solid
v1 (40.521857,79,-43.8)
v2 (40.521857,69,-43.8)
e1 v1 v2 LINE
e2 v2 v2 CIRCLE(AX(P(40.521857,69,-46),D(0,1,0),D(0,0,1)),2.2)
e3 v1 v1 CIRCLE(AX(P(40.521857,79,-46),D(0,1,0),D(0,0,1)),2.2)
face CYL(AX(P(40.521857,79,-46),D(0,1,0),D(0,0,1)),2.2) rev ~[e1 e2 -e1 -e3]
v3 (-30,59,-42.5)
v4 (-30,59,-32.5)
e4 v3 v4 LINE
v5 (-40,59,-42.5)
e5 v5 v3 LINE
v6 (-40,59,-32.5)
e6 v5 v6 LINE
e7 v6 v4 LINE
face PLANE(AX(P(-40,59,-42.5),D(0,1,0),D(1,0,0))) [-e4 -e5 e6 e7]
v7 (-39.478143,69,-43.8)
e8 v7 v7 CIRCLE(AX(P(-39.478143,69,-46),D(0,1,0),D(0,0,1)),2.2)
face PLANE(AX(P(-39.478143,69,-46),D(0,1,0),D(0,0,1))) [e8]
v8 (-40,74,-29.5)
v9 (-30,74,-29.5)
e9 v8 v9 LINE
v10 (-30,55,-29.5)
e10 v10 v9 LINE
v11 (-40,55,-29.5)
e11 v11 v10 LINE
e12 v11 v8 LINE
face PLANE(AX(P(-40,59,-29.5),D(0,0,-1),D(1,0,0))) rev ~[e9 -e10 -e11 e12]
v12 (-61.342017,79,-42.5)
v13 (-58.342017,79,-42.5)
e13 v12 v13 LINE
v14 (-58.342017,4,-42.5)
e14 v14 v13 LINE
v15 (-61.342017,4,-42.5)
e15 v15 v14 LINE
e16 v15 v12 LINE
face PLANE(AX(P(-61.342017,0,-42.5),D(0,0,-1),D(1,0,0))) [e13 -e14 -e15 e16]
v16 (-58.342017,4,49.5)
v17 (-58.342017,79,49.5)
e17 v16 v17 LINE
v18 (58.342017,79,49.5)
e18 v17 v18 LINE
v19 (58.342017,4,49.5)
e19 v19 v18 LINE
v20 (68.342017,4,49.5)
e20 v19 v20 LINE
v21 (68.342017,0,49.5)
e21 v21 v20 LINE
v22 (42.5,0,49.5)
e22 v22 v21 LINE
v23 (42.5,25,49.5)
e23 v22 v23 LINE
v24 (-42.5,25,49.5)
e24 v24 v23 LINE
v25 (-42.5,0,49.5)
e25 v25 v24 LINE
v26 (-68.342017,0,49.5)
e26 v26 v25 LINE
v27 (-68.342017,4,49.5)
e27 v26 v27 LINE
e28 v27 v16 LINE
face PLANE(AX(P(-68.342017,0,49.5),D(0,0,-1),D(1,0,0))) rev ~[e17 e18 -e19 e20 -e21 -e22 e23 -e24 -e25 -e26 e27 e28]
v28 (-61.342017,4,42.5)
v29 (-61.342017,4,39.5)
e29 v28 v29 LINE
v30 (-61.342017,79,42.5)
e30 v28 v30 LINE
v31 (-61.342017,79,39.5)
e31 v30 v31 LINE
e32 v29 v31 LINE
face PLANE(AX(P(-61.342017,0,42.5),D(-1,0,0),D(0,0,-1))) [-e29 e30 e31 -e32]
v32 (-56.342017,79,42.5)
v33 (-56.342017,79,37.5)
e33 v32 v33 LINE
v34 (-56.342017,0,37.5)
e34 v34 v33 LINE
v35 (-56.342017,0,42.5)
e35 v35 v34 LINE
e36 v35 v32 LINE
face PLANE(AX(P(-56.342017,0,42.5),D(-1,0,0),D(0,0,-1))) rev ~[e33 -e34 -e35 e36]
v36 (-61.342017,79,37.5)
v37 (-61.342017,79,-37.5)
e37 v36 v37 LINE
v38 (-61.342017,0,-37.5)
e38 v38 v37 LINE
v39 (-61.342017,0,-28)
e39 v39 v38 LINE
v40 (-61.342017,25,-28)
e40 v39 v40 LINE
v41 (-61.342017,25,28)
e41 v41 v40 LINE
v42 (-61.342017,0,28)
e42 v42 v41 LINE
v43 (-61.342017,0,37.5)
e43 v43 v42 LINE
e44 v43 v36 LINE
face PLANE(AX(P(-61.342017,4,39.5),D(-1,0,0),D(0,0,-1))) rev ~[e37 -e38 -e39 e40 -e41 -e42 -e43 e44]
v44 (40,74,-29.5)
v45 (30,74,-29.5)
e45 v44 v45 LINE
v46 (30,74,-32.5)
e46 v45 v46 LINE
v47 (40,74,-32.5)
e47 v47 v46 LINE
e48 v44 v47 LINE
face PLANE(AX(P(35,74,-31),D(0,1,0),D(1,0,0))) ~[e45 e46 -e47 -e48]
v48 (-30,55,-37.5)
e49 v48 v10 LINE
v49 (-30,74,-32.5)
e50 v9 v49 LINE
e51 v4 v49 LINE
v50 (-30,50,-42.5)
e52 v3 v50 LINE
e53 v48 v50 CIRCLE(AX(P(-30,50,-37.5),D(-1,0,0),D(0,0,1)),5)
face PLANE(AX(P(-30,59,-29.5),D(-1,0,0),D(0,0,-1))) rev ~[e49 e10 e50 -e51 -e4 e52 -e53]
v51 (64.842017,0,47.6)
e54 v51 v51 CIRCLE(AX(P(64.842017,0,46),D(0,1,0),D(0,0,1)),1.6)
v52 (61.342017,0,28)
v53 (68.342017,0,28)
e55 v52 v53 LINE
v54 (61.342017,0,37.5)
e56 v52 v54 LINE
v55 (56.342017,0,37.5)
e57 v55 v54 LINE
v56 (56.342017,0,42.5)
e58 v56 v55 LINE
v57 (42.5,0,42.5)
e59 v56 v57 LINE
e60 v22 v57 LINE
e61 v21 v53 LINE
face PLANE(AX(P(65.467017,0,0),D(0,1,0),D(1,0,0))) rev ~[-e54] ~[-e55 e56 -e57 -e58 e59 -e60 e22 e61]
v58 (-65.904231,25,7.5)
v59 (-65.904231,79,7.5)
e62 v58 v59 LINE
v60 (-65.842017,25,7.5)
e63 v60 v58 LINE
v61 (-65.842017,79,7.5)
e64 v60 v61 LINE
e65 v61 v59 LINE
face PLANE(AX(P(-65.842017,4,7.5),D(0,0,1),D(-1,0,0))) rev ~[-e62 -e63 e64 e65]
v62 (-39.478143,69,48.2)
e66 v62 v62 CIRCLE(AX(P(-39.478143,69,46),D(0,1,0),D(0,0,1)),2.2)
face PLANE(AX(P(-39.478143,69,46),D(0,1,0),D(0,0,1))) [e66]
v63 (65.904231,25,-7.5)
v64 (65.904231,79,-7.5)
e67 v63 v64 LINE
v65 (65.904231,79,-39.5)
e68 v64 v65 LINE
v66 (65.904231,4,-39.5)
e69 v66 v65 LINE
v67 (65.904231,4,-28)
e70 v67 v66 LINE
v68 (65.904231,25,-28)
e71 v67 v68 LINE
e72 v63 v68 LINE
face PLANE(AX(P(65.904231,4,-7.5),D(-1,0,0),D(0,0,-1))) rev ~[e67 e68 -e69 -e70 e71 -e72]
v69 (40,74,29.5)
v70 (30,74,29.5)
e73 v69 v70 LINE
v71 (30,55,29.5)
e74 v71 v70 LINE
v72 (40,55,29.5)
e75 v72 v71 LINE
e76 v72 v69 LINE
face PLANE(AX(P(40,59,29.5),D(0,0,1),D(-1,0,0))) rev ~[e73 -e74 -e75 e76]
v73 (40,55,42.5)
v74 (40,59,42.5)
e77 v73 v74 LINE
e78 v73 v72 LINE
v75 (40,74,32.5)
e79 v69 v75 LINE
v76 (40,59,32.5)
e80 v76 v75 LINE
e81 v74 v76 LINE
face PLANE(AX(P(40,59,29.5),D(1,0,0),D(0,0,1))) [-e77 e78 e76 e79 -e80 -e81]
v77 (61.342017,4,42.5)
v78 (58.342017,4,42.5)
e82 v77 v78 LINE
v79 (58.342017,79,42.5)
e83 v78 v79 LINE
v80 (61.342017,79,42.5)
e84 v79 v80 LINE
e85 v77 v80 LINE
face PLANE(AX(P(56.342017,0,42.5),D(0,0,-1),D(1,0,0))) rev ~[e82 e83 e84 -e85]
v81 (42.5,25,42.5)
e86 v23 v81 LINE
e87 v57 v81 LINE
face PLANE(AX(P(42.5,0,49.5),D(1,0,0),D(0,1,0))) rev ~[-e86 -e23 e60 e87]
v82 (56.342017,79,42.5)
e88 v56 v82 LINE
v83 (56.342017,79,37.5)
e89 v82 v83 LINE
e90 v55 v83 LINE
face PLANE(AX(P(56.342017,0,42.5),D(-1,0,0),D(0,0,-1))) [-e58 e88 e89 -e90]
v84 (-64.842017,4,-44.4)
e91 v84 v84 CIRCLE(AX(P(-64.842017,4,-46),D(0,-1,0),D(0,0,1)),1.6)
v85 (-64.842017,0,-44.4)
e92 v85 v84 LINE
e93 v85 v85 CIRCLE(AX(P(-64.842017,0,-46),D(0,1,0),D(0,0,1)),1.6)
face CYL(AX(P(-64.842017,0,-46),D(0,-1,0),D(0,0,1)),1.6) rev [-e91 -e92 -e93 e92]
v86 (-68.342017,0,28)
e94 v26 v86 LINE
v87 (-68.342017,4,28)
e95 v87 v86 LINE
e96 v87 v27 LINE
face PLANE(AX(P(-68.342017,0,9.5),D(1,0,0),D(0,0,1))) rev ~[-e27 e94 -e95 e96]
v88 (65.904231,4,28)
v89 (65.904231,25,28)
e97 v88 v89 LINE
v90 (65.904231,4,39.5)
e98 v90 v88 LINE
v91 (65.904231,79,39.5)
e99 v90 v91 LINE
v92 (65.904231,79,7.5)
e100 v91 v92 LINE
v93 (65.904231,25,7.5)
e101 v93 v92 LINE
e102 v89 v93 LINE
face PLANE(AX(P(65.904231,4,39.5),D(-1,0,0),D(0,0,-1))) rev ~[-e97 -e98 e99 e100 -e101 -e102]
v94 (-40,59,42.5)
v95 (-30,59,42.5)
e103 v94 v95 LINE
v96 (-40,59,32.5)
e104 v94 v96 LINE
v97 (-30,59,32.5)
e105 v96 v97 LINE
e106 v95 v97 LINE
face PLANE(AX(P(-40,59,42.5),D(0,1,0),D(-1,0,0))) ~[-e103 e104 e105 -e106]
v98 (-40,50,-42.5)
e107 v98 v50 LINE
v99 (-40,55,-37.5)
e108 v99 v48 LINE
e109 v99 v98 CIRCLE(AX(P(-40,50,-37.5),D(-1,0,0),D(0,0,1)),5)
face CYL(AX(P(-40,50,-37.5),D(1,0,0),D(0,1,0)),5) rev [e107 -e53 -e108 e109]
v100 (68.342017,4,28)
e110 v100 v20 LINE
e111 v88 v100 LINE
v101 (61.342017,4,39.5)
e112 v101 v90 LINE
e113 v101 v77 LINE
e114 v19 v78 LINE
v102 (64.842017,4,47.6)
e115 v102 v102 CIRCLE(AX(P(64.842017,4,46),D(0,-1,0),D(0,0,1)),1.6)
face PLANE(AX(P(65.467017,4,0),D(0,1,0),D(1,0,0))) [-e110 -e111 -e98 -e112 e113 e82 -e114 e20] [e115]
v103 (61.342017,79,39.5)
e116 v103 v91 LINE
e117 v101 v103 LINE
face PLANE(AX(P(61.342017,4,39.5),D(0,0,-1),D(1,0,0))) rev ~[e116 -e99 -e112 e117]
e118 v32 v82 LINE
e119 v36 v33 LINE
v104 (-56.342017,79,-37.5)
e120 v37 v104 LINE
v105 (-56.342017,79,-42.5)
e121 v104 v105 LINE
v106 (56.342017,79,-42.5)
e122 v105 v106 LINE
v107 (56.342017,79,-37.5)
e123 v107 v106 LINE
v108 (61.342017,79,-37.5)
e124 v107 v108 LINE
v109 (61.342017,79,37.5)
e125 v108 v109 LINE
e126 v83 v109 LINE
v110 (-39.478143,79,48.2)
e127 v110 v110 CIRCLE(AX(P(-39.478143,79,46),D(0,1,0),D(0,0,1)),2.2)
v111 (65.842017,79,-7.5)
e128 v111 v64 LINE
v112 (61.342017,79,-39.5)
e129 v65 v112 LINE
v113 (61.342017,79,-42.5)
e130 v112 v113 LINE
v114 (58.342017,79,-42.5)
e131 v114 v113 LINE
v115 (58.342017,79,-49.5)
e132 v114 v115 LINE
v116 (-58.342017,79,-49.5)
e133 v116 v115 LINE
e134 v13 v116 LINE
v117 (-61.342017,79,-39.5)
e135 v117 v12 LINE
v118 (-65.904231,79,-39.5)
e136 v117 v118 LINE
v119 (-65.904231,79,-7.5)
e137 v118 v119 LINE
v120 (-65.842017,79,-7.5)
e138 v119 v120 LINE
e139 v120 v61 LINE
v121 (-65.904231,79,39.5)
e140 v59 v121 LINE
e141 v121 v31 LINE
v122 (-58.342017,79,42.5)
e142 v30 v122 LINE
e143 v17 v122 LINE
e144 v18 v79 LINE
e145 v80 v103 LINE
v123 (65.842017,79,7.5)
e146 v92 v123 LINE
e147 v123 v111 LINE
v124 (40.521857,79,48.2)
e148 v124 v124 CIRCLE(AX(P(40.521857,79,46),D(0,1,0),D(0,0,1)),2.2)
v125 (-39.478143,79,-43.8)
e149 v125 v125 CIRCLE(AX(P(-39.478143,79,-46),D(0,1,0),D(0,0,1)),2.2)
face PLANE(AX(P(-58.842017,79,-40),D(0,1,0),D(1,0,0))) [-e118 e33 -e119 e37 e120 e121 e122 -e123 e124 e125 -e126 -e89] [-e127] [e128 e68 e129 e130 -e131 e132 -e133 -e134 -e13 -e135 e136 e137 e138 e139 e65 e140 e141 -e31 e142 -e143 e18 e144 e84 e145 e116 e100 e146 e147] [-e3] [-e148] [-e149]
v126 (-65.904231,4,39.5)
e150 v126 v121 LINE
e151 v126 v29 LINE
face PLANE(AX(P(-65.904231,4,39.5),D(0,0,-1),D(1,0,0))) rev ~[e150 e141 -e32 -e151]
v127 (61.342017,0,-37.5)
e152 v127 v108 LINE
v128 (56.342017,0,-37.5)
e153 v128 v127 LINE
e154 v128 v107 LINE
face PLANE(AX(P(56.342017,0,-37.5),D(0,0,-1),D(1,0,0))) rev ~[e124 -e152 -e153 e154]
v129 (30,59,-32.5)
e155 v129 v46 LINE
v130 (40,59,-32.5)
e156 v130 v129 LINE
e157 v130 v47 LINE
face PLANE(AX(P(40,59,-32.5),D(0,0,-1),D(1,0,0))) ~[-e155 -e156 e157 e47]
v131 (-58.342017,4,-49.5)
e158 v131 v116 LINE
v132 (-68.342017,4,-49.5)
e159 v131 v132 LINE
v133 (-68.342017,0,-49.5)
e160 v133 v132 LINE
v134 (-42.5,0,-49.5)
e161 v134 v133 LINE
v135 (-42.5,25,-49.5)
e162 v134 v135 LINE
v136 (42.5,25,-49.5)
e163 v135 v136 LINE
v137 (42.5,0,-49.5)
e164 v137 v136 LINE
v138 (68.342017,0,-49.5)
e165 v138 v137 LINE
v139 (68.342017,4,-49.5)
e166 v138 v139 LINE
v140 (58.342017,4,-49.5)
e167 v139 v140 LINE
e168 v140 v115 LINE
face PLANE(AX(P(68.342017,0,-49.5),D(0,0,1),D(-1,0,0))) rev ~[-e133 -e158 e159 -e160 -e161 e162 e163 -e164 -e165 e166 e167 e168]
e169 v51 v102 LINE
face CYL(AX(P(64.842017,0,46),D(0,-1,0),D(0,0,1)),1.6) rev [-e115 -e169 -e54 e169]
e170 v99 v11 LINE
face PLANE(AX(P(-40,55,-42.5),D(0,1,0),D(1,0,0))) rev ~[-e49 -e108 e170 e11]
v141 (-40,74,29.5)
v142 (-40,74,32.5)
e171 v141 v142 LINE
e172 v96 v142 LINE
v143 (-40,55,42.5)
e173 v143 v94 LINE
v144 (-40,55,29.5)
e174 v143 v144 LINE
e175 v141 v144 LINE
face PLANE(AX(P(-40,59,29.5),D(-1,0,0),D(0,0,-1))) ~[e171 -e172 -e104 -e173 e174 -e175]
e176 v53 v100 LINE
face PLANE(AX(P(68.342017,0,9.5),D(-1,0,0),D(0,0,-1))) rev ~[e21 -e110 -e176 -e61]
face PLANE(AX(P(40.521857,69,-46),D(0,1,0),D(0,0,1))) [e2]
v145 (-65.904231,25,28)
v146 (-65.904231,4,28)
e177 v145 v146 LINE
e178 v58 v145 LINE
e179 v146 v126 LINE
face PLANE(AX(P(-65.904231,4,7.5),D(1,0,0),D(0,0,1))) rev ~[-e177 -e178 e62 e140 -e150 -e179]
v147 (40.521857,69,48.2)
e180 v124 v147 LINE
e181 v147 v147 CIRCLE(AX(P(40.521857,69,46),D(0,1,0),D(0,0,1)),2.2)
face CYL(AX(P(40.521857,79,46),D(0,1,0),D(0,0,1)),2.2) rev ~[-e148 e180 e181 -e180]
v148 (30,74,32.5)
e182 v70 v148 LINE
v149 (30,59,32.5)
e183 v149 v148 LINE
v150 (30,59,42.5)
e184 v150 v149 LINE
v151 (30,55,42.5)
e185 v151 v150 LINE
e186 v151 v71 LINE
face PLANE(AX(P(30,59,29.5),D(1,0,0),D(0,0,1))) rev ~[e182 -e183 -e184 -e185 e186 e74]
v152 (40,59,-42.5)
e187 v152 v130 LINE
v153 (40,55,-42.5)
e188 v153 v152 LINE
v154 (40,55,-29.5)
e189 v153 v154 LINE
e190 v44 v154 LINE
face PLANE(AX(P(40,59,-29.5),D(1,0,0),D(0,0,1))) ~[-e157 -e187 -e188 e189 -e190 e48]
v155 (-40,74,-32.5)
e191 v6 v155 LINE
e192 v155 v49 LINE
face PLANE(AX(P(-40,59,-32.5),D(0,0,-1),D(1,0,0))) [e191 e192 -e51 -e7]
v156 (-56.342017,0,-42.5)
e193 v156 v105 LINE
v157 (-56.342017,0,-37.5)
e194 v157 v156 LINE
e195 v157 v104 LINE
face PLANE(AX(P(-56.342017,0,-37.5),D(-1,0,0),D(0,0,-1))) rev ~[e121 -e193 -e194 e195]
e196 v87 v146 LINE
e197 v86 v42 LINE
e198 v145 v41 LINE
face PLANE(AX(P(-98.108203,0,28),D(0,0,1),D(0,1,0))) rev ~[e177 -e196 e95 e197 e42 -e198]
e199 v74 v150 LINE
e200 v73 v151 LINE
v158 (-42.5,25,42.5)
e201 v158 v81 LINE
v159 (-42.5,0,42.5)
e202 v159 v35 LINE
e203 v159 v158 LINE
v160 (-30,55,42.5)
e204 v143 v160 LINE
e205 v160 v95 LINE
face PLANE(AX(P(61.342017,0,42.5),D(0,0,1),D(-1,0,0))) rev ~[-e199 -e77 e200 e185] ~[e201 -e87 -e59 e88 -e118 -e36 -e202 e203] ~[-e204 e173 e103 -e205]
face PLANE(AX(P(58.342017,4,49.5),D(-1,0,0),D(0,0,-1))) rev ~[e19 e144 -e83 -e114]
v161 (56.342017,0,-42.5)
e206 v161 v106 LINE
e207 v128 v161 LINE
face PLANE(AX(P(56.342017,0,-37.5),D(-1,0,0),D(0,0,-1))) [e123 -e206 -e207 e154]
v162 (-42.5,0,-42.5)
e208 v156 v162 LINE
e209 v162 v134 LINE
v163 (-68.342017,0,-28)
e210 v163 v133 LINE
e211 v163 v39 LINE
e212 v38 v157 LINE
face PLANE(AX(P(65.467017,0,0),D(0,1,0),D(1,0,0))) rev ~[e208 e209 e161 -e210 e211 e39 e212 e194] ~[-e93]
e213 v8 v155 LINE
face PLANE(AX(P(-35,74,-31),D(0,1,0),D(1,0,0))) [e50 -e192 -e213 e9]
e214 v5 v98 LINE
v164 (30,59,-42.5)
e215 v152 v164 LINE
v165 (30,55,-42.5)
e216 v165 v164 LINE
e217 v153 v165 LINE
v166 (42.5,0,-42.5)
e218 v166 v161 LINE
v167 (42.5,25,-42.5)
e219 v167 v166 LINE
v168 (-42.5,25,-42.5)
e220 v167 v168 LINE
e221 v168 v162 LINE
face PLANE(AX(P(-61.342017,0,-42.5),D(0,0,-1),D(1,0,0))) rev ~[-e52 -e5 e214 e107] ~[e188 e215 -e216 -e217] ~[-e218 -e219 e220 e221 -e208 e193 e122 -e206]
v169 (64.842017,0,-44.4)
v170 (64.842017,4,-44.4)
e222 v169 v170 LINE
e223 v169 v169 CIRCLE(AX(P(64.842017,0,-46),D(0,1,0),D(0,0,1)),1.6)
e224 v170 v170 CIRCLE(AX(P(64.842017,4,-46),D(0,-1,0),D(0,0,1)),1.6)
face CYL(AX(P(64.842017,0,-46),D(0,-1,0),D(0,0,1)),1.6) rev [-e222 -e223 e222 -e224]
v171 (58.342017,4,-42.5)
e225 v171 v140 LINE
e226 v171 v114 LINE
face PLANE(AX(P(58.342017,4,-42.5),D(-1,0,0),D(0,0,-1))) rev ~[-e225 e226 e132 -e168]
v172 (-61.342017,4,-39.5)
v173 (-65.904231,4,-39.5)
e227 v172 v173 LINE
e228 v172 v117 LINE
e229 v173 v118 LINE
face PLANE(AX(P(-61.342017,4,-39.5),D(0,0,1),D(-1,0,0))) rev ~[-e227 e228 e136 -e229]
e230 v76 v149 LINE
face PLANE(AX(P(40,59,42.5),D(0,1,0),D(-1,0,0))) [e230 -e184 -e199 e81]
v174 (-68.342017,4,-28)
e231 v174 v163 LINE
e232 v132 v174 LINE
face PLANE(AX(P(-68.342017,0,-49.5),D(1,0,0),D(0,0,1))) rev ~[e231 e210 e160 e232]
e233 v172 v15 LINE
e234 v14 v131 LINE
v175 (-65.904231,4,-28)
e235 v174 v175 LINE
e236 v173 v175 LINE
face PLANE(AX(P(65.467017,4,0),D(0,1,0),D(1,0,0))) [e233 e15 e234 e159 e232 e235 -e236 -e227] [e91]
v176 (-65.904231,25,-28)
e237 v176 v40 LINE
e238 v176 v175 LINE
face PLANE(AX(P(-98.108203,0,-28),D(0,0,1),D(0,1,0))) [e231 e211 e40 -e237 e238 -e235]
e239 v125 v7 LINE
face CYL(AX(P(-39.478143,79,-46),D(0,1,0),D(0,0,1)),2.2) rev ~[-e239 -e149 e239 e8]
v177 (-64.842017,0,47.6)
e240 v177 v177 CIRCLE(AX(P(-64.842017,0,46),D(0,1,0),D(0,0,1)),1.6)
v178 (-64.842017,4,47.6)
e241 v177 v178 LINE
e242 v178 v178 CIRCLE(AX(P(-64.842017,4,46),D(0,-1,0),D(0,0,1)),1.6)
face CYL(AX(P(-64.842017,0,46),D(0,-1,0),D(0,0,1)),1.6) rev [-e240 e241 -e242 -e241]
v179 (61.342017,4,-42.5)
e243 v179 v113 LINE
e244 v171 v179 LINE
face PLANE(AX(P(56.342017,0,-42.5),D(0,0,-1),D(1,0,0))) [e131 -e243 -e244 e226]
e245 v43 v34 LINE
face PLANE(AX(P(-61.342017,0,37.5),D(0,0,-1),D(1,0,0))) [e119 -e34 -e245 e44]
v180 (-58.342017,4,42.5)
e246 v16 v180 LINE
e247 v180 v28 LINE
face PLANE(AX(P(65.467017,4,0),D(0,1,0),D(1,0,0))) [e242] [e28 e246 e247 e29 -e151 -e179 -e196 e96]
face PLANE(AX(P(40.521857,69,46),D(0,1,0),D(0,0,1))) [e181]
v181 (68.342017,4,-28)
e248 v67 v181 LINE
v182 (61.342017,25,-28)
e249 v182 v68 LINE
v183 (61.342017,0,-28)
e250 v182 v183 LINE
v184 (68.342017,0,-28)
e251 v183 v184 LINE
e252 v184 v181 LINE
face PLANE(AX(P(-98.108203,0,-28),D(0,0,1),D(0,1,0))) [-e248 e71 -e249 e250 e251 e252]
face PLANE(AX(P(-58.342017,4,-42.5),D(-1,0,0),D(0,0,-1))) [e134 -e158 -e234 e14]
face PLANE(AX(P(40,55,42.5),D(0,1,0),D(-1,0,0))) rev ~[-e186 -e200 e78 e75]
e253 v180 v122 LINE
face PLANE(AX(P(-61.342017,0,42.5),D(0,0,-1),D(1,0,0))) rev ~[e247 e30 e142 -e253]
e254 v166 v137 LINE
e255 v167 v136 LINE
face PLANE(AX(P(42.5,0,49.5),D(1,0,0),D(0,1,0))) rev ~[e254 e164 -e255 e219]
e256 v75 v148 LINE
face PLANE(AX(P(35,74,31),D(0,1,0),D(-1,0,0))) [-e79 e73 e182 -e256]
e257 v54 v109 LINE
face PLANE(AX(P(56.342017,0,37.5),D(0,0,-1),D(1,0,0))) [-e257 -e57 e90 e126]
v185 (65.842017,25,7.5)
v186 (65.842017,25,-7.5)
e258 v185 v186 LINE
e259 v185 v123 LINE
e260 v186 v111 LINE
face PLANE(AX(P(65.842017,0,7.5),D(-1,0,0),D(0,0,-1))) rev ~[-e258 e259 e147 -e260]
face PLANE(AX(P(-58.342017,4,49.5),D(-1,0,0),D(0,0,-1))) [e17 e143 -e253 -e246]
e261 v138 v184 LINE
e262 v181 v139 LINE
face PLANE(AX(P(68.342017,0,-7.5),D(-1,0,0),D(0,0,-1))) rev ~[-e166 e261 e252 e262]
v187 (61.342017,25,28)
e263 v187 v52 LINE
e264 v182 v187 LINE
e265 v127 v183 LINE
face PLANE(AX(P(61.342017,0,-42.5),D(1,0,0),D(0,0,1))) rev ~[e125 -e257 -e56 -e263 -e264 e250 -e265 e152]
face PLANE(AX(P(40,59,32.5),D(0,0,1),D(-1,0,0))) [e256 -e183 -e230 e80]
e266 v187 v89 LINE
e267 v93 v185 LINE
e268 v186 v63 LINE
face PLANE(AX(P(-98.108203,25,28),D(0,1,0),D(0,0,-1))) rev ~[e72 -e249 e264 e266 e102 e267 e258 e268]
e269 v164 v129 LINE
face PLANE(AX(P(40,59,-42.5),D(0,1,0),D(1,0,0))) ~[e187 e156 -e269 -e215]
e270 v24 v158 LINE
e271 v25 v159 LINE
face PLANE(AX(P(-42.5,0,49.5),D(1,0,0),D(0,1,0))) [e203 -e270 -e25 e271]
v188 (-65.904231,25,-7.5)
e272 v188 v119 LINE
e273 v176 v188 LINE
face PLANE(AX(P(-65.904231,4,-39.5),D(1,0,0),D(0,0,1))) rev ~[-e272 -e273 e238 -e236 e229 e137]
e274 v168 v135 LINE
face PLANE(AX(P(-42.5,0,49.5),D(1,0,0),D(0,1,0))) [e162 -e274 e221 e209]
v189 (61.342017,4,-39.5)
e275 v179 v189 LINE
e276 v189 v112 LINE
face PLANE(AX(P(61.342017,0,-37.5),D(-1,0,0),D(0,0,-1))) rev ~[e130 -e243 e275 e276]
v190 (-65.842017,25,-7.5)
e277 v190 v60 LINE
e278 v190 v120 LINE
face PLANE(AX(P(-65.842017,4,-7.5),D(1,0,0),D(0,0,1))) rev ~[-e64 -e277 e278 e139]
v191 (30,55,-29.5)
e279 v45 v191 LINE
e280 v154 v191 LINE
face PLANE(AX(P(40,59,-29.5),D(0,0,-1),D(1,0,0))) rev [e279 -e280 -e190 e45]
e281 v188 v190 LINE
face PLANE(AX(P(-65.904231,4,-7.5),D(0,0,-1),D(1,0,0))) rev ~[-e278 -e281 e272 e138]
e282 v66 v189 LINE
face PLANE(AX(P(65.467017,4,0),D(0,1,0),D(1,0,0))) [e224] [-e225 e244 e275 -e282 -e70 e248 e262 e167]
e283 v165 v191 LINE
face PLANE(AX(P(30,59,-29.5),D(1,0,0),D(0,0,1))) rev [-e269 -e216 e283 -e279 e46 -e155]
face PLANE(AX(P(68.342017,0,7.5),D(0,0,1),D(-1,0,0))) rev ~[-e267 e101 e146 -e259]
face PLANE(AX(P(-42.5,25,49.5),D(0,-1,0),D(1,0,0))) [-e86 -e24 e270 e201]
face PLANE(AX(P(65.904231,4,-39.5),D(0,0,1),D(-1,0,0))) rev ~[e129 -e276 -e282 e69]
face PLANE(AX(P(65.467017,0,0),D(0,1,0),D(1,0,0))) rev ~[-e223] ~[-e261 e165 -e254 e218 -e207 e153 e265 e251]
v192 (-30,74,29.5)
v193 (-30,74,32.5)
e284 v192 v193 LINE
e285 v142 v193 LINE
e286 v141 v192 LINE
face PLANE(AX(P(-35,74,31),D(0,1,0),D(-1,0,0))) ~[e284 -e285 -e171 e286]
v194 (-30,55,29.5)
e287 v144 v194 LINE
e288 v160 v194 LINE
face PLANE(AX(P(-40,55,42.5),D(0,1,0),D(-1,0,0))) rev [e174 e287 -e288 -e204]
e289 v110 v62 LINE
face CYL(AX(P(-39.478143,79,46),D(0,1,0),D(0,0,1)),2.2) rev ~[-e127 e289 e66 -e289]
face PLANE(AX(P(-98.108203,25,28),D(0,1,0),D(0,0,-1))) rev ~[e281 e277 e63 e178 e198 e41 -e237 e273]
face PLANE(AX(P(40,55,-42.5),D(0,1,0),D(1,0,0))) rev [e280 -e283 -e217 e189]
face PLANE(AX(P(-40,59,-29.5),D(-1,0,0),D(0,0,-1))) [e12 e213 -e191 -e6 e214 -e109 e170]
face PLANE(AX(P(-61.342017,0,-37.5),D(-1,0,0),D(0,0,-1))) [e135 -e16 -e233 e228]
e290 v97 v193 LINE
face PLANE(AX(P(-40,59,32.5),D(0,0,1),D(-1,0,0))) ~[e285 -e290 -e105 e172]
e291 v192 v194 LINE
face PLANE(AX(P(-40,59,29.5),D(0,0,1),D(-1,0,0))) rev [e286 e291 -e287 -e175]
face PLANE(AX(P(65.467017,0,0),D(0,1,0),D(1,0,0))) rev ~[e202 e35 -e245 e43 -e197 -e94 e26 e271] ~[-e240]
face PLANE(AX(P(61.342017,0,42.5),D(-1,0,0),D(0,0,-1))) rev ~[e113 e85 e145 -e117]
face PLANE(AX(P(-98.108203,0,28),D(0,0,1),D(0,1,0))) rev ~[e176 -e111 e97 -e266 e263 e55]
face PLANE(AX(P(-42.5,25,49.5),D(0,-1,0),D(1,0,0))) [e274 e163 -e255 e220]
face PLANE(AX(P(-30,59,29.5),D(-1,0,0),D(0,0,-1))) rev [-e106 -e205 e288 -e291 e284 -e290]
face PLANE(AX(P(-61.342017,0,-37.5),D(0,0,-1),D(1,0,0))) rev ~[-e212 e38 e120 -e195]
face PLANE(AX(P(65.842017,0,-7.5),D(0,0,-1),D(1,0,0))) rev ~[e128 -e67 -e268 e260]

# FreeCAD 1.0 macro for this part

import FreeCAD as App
import Part
import Sketcher


def edges_at(feature, points):
    """Names of the edges that pass closest to the given points."""
    edges = feature.Shape.Edges
    near = lambda p: min(range(len(edges)), key=lambda i: edges[i].distToShape(Part.Vertex(*p))[0])
    return sorted({f"Edge{near(p) + 1}" for p in points})

doc = App.newDocument("Part")
body = doc.addObject("PartDesign::Body", "Body")

sketch1 = body.newObject("Sketcher::SketchObject", "Sketch")
sketch1.AttachmentSupport = (doc.getObject("XZ_Plane"), [""])
sketch1.MapMode = "FlatFace"
sketch1.addGeometry([
    Part.LineSegment(App.Vector(-68.3, 49.5, 0), App.Vector(68.3, 49.5, 0)),
    Part.LineSegment(App.Vector(68.3, 49.5, 0), App.Vector(68.3, 7.5, 0)),
    Part.LineSegment(App.Vector(68.3, 7.5, 0), App.Vector(65.8, 7.5, 0)),
    Part.LineSegment(App.Vector(65.8, 7.5, 0), App.Vector(65.8, -7.5, 0)),
    Part.LineSegment(App.Vector(65.8, -7.5, 0), App.Vector(68.3, -7.5, 0)),
    Part.LineSegment(App.Vector(68.3, -7.5, 0), App.Vector(68.3, -49.5, 0)),
    Part.LineSegment(App.Vector(68.3, -49.5, 0), App.Vector(-68.3, -49.5, 0)),
    Part.LineSegment(App.Vector(-68.3, -49.5, 0), App.Vector(-68.3, -7.5, 0)),
    Part.LineSegment(App.Vector(-68.3, -7.5, 0), App.Vector(-65.8, -7.5, 0)),
    Part.LineSegment(App.Vector(-65.8, -7.5, 0), App.Vector(-65.8, 7.5, 0)),
    Part.LineSegment(App.Vector(-65.8, 7.5, 0), App.Vector(-68.3, 7.5, 0)),
    Part.LineSegment(App.Vector(-68.3, 7.5, 0), App.Vector(-68.3, 49.5, 0)),
    Part.LineSegment(App.Vector(61.3, 42.5, 0), App.Vector(-61.3, 42.5, 0)),
    Part.LineSegment(App.Vector(-61.3, 42.5, 0), App.Vector(-61.3, -42.5, 0)),
    Part.LineSegment(App.Vector(-61.3, -42.5, 0), App.Vector(61.3, -42.5, 0)),
    Part.LineSegment(App.Vector(61.3, -42.5, 0), App.Vector(61.3, 42.5, 0)),
], False)
sketch1.addConstraint([
    Sketcher.Constraint("Coincident", 0, 2, 1, 1),
    Sketcher.Constraint("Coincident", 1, 2, 2, 1),
    Sketcher.Constraint("Coincident", 2, 2, 3, 1),
    Sketcher.Constraint("Coincident", 3, 2, 4, 1),
    Sketcher.Constraint("Coincident", 4, 2, 5, 1),
    Sketcher.Constraint("Coincident", 5, 2, 6, 1),
    Sketcher.Constraint("Coincident", 6, 2, 7, 1),
    Sketcher.Constraint("Coincident", 7, 2, 8, 1),
    Sketcher.Constraint("Coincident", 8, 2, 9, 1),
    Sketcher.Constraint("Coincident", 9, 2, 10, 1),
    Sketcher.Constraint("Coincident", 10, 2, 11, 1),
    Sketcher.Constraint("Coincident", 11, 2, 0, 1),
    Sketcher.Constraint("Coincident", 12, 2, 13, 1),
    Sketcher.Constraint("Coincident", 13, 2, 14, 1),
    Sketcher.Constraint("Coincident", 14, 2, 15, 1),
    Sketcher.Constraint("Coincident", 15, 2, 12, 1),
    Sketcher.Constraint("Horizontal", 0),
    Sketcher.Constraint("Vertical", 1),
    Sketcher.Constraint("Horizontal", 2),
    Sketcher.Constraint("Vertical", 3),
    Sketcher.Constraint("Horizontal", 4),
    Sketcher.Constraint("Vertical", 5),
    Sketcher.Constraint("Horizontal", 6),
    Sketcher.Constraint("Vertical", 7),
    Sketcher.Constraint("Horizontal", 8),
    Sketcher.Constraint("Vertical", 9),
    Sketcher.Constraint("Horizontal", 10),
    Sketcher.Constraint("Vertical", 11),
    Sketcher.Constraint("Horizontal", 12),
    Sketcher.Constraint("Vertical", 13),
    Sketcher.Constraint("Horizontal", 14),
    Sketcher.Constraint("Vertical", 15),
    Sketcher.Constraint("Symmetric", 0, 2, 6, 2, -1, 1),
    Sketcher.Constraint("Symmetric", 2, 2, 8, 2, -1, 1),
    Sketcher.Constraint("Symmetric", 4, 2, 10, 2, -1, 1),
    Sketcher.Constraint("Symmetric", 12, 2, 14, 2, -1, 1),
    Sketcher.Constraint("Symmetric", 4, 2, 7, 2, -2),
    Sketcher.Constraint("DistanceY", 1, 2, 1, 1, 42.0),
    Sketcher.Constraint("DistanceY", 3, 2, 3, 1, 15.0),
    Sketcher.Constraint("DistanceY", 13, 2, 13, 1, 85.0),
    Sketcher.Constraint("DistanceX", 2, 2, 2, 1, 2.5),
    Sketcher.Constraint("DistanceX", 11, 2, 12, 2, 7.0),
    Sketcher.Constraint("DistanceX", 0, 1, 0, 2, 136.684035),
])
pad1 = body.newObject("PartDesign::Pad", "Pad")
pad1.Profile = sketch1
pad1.Length = 4
pad1.Reversed = True

sketch2 = body.newObject("Sketcher::SketchObject", "Sketch001")
sketch2.AttachmentSupport = (doc.getObject("XZ_Plane"), [""])
sketch2.MapMode = "FlatFace"
sketch2.addGeometry(Part.Circle(App.Vector(-64.8, -46, 0), App.Vector(0, 0, 1), 1.6), False)
sketch2.addConstraint([
    Sketcher.Constraint("Diameter", 0, 3.2),
    Sketcher.Constraint("DistanceY", 0, 3, -1, 1, 46.0),
    Sketcher.Constraint("DistanceX", 0, 3, -1, 1, 64.842017),
])
pocket1 = body.newObject("PartDesign::Pocket", "Pocket")
pocket1.Profile = sketch2
pocket1.Type = "UpToFirst"

sketch3 = body.newObject("Sketcher::SketchObject", "Sketch002")
sketch3.AttachmentSupport = (doc.getObject("XZ_Plane"), [""])
sketch3.MapMode = "FlatFace"
sketch3.addGeometry(Part.Circle(App.Vector(-64.8, 46, 0), App.Vector(0, 0, 1), 1.6), False)
sketch3.addConstraint([
    Sketcher.Constraint("Diameter", 0, 3.2),
    Sketcher.Constraint("DistanceY", -1, 1, 0, 3, 46.0),
    Sketcher.Constraint("DistanceX", 0, 3, -1, 1, 64.842017),
])
pocket2 = body.newObject("PartDesign::Pocket", "Pocket001")
pocket2.Profile = sketch3
pocket2.Type = "UpToFirst"

sketch4 = body.newObject("Sketcher::SketchObject", "Sketch003")
sketch4.AttachmentSupport = (doc.getObject("XZ_Plane"), [""])
sketch4.MapMode = "FlatFace"
sketch4.addGeometry(Part.Circle(App.Vector(64.8, 46, 0), App.Vector(0, 0, 1), 1.6), False)
sketch4.addConstraint([
    Sketcher.Constraint("Diameter", 0, 3.2),
    Sketcher.Constraint("DistanceY", -1, 1, 0, 3, 46.0),
    Sketcher.Constraint("DistanceX", -1, 1, 0, 3, 64.842017),
])
pocket3 = body.newObject("PartDesign::Pocket", "Pocket002")
pocket3.Profile = sketch4
pocket3.Type = "UpToFirst"

sketch5 = body.newObject("Sketcher::SketchObject", "Sketch004")
sketch5.AttachmentSupport = (doc.getObject("XZ_Plane"), [""])
sketch5.MapMode = "FlatFace"
sketch5.addGeometry(Part.Circle(App.Vector(64.8, -46, 0), App.Vector(0, 0, 1), 1.6), False)
sketch5.addConstraint([
    Sketcher.Constraint("Diameter", 0, 3.2),
    Sketcher.Constraint("DistanceY", 0, 3, -1, 1, 46.0),
    Sketcher.Constraint("DistanceX", -1, 1, 0, 3, 64.842017),
])
pocket4 = body.newObject("PartDesign::Pocket", "Pocket003")
pocket4.Profile = sketch5
pocket4.Type = "UpToFirst"

sketch6 = body.newObject("Sketcher::SketchObject", "Sketch005")
sketch6.AttachmentSupport = (doc.getObject("XZ_Plane"), [""])
sketch6.MapMode = "FlatFace"
sketch6.AttachmentOffset = App.Placement(App.Vector(0, 0, -4), App.Rotation())
sketch6.addGeometry([
    Part.LineSegment(App.Vector(-61.34, 39.5, 0), App.Vector(-61.34, -39.5, 0)),
    Part.LineSegment(App.Vector(-61.34, -39.5, 0), App.Vector(-65.9, -39.5, 0)),
    Part.LineSegment(App.Vector(-65.9, -39.5, 0), App.Vector(-65.9, -7.5, 0)),
    Part.LineSegment(App.Vector(-65.9, -7.5, 0), App.Vector(-65.84, -7.5, 0)),
    Part.LineSegment(App.Vector(-65.84, -7.5, 0), App.Vector(-65.84, 7.5, 0)),
    Part.LineSegment(App.Vector(-65.84, 7.5, 0), App.Vector(-65.9, 7.5, 0)),
    Part.LineSegment(App.Vector(-65.9, 7.5, 0), App.Vector(-65.9, 39.5, 0)),
    Part.LineSegment(App.Vector(-65.9, 39.5, 0), App.Vector(-61.34, 39.5, 0)),
    Part.LineSegment(App.Vector(-58.34, -49.5, 0), App.Vector(-58.34, -42.5, 0)),
    Part.LineSegment(App.Vector(-58.34, -42.5, 0), App.Vector(58.34, -42.5, 0)),
    Part.LineSegment(App.Vector(58.34, -42.5, 0), App.Vector(58.34, -49.5, 0)),
    Part.LineSegment(App.Vector(58.34, -49.5, 0), App.Vector(-58.34, -49.5, 0)),
    Part.LineSegment(App.Vector(-58.34, 42.5, 0), App.Vector(-58.34, 49.5, 0)),
    Part.LineSegment(App.Vector(-58.34, 49.5, 0), App.Vector(58.34, 49.5, 0)),
    Part.LineSegment(App.Vector(58.34, 49.5, 0), App.Vector(58.34, 42.5, 0)),
    Part.LineSegment(App.Vector(58.34, 42.5, 0), App.Vector(-58.34, 42.5, 0)),
    Part.LineSegment(App.Vector(65.9, -39.5, 0), App.Vector(61.34, -39.5, 0)),
    Part.LineSegment(App.Vector(61.34, -39.5, 0), App.Vector(61.34, 39.5, 0)),
    Part.LineSegment(App.Vector(61.34, 39.5, 0), App.Vector(65.9, 39.5, 0)),
    Part.LineSegment(App.Vector(65.9, 39.5, 0), App.Vector(65.9, 7.5, 0)),
    Part.LineSegment(App.Vector(65.9, 7.5, 0), App.Vector(65.84, 7.5, 0)),
    Part.LineSegment(App.Vector(65.84, 7.5, 0), App.Vector(65.84, -7.5, 0)),
    Part.LineSegment(App.Vector(65.84, -7.5, 0), App.Vector(65.9, -7.5, 0)),
    Part.LineSegment(App.Vector(65.9, -7.5, 0), App.Vector(65.9, -39.5, 0)),
], False)
sketch6.addConstraint([
    Sketcher.Constraint("Coincident", 0, 2, 1, 1),
    Sketcher.Constraint("Coincident", 1, 2, 2, 1),
    Sketcher.Constraint("Coincident", 2, 2, 3, 1),
    Sketcher.Constraint("Coincident", 3, 2, 4, 1),
    Sketcher.Constraint("Coincident", 4, 2, 5, 1),
    Sketcher.Constraint("Coincident", 5, 2, 6, 1),
    Sketcher.Constraint("Coincident", 6, 2, 7, 1),
    Sketcher.Constraint("Coincident", 7, 2, 0, 1),
    Sketcher.Constraint("Coincident", 8, 2, 9, 1),
    Sketcher.Constraint("Coincident", 9, 2, 10, 1),
    Sketcher.Constraint("Coincident", 10, 2, 11, 1),
    Sketcher.Constraint("Coincident", 11, 2, 8, 1),
    Sketcher.Constraint("Coincident", 12, 2, 13, 1),
    Sketcher.Constraint("Coincident", 13, 2, 14, 1),
    Sketcher.Constraint("Coincident", 14, 2, 15, 1),
    Sketcher.Constraint("Coincident", 15, 2, 12, 1),
    Sketcher.Constraint("Coincident", 16, 2, 17, 1),
    Sketcher.Constraint("Coincident", 17, 2, 18, 1),
    Sketcher.Constraint("Coincident", 18, 2, 19, 1),
    Sketcher.Constraint("Coincident", 19, 2, 20, 1),
    Sketcher.Constraint("Coincident", 20, 2, 21, 1),
    Sketcher.Constraint("Coincident", 21, 2, 22, 1),
    Sketcher.Constraint("Coincident", 22, 2, 23, 1),
    Sketcher.Constraint("Coincident", 23, 2, 16, 1),
    Sketcher.Constraint("Vertical", 0),
    Sketcher.Constraint("Horizontal", 1),
    Sketcher.Constraint("Vertical", 2),
    Sketcher.Constraint("Horizontal", 3),
    Sketcher.Constraint("Vertical", 4),
    Sketcher.Constraint("Horizontal", 5),
    Sketcher.Constraint("Vertical", 6),
    Sketcher.Constraint("Horizontal", 7),
    Sketcher.Constraint("Vertical", 8),
    Sketcher.Constraint("Horizontal", 9),
    Sketcher.Constraint("Vertical", 10),
    Sketcher.Constraint("Horizontal", 11),
    Sketcher.Constraint("Vertical", 12),
    Sketcher.Constraint("Horizontal", 13),
    Sketcher.Constraint("Vertical", 14),
    Sketcher.Constraint("Horizontal", 15),
    Sketcher.Constraint("Horizontal", 16),
    Sketcher.Constraint("Vertical", 17),
    Sketcher.Constraint("Horizontal", 18),
    Sketcher.Constraint("Vertical", 19),
    Sketcher.Constraint("Horizontal", 20),
    Sketcher.Constraint("Vertical", 21),
    Sketcher.Constraint("Horizontal", 22),
    Sketcher.Constraint("Vertical", 23),
    Sketcher.Constraint("Symmetric", 10, 2, 12, 2, -1, 1),
    Sketcher.Constraint("Symmetric", 8, 2, 14, 2, -1, 1),
    Sketcher.Constraint("Symmetric", 7, 2, 16, 2, -1, 1),
    Sketcher.Constraint("Symmetric", 1, 2, 18, 2, -1, 1),
    Sketcher.Constraint("Symmetric", 3, 2, 20, 2, -1, 1),
    Sketcher.Constraint("Symmetric", 5, 2, 22, 2, -1, 1),
    Sketcher.Constraint("Symmetric", 6, 2, 18, 2, -2),
    Sketcher.Constraint("Horizontal", 5, 2, 19, 2),
    Sketcher.Constraint("Vertical", 11, 2, 12, 2),
    Sketcher.Constraint("DistanceY", 0, 2, 0, 1, 79.0),
    Sketcher.Constraint("DistanceY", 2, 1, 2, 2, 32.0),
    Sketcher.Constraint("DistanceY", 8, 1, 8, 2, 7.0),
    Sketcher.Constraint("DistanceX", 0, 2, 8, 2, 3.0),
    Sketcher.Constraint("DistanceY", 8, 2, 0, 2, 3.0),
    Sketcher.Constraint("DistanceX", 3, 2, 0, 2, 4.5),
    Sketcher.Constraint("DistanceX", 1, 2, 1, 1, 4.562214),
    Sketcher.Constraint("DistanceX", 9, 1, 9, 2, 116.684035),
])
pad2 = body.newObject("PartDesign::Pad", "Pad001")
pad2.Profile = sketch6
pad2.Length = 75
pad2.Reversed = True

sketch7 = body.newObject("Sketcher::SketchObject", "Sketch006")
sketch7.AttachmentSupport = (doc.getObject("XZ_Plane"), [""])
sketch7.MapMode = "FlatFace"
sketch7.addGeometry([
    Part.LineSegment(App.Vector(-61, -42, 0), App.Vector(-61, -38, 0)),
    Part.LineSegment(App.Vector(-61, -38, 0), App.Vector(-56, -38, 0)),
    Part.LineSegment(App.Vector(-56, -38, 0), App.Vector(-56, -42, 0)),
    Part.LineSegment(App.Vector(-56, -42, 0), App.Vector(-61, -42, 0)),
    Part.LineSegment(App.Vector(-61, 38, 0), App.Vector(-61, 42, 0)),
    Part.LineSegment(App.Vector(-61, 42, 0), App.Vector(-56, 42, 0)),
    Part.LineSegment(App.Vector(-56, 42, 0), App.Vector(-56, 38, 0)),
    Part.LineSegment(App.Vector(-56, 38, 0), App.Vector(-61, 38, 0)),
    Part.LineSegment(App.Vector(56, 38, 0), App.Vector(56, 42, 0)),
    Part.LineSegment(App.Vector(56, 42, 0), App.Vector(61, 42, 0)),
    Part.LineSegment(App.Vector(61, 42, 0), App.Vector(61, 38, 0)),
    Part.LineSegment(App.Vector(61, 38, 0), App.Vector(56, 38, 0)),
    Part.LineSegment(App.Vector(56, -42, 0), App.Vector(56, -38, 0)),
    Part.LineSegment(App.Vector(56, -38, 0), App.Vector(61, -38, 0)),
    Part.LineSegment(App.Vector(61, -38, 0), App.Vector(61, -42, 0)),
    Part.LineSegment(App.Vector(61, -42, 0), App.Vector(56, -42, 0)),
], False)
sketch7.addConstraint([
    Sketcher.Constraint("Coincident", 0, 2, 1, 1),
    Sketcher.Constraint("Coincident", 1, 2, 2, 1),
    Sketcher.Constraint("Coincident", 2, 2, 3, 1),
    Sketcher.Constraint("Coincident", 3, 2, 0, 1),
    Sketcher.Constraint("Coincident", 4, 2, 5, 1),
    Sketcher.Constraint("Coincident", 5, 2, 6, 1),
    Sketcher.Constraint("Coincident", 6, 2, 7, 1),
    Sketcher.Constraint("Coincident", 7, 2, 4, 1),
    Sketcher.Constraint("Coincident", 8, 2, 9, 1),
    Sketcher.Constraint("Coincident", 9, 2, 10, 1),
    Sketcher.Constraint("Coincident", 10, 2, 11, 1),
    Sketcher.Constraint("Coincident", 11, 2, 8, 1),
    Sketcher.Constraint("Coincident", 12, 2, 13, 1),
    Sketcher.Constraint("Coincident", 13, 2, 14, 1),
    Sketcher.Constraint("Coincident", 14, 2, 15, 1),
    Sketcher.Constraint("Coincident", 15, 2, 12, 1),
    Sketcher.Constraint("Vertical", 0),
    Sketcher.Constraint("Horizontal", 1),
    Sketcher.Constraint("Vertical", 2),
    Sketcher.Constraint("Horizontal", 3),
    Sketcher.Constraint("Vertical", 4),
    Sketcher.Constraint("Horizontal", 5),
    Sketcher.Constraint("Vertical", 6),
    Sketcher.Constraint("Horizontal", 7),
    Sketcher.Constraint("Vertical", 8),
    Sketcher.Constraint("Horizontal", 9),
    Sketcher.Constraint("Vertical", 10),
    Sketcher.Constraint("Horizontal", 11),
    Sketcher.Constraint("Vertical", 12),
    Sketcher.Constraint("Horizontal", 13),
    Sketcher.Constraint("Vertical", 14),
    Sketcher.Constraint("Horizontal", 15),
    Sketcher.Constraint("Symmetric", 2, 2, 8, 2, -1, 1),
    Sketcher.Constraint("Symmetric", 0, 2, 10, 2, -1, 1),
    Sketcher.Constraint("Symmetric", 6, 2, 12, 2, -1, 1),
    Sketcher.Constraint("Symmetric", 4, 2, 14, 2, -1, 1),
    Sketcher.Constraint("Symmetric", 5, 2, 8, 2, -2),
    Sketcher.Constraint("Symmetric", 7, 2, 10, 2, -2),
    Sketcher.Constraint("Equal", 15, 0),
    Sketcher.Constraint("DistanceX", 1, 1, 1, 2, 5.0),
    Sketcher.Constraint("DistanceY", 0, 2, 4, 2, 80.0),
    Sketcher.Constraint("DistanceX", 0, 2, -1, 1, 61.342017),
])
pad3 = body.newObject("PartDesign::Pad", "Pad002")
pad3.Profile = sketch7
pad3.Length = 79
pad3.Reversed = True

sketch8 = body.newObject("Sketcher::SketchObject", "Sketch007")
sketch8.AttachmentSupport = (doc.getObject("XY_Plane"), [""])
sketch8.MapMode = "FlatFace"
sketch8.AttachmentOffset = App.Placement(App.Vector(0, 0, 49.5), App.Rotation())
sketch8.addGeometry([
    Part.LineSegment(App.Vector(-42, 25, 0), App.Vector(-42, 0, 0)),
    Part.LineSegment(App.Vector(-42, 0, 0), App.Vector(42, 0, 0)),
    Part.LineSegment(App.Vector(42, 0, 0), App.Vector(42, 25, 0)),
    Part.LineSegment(App.Vector(42, 25, 0), App.Vector(-42, 25, 0)),
], False)
sketch8.addConstraint([
    Sketcher.Constraint("Coincident", 0, 2, 1, 1),
    Sketcher.Constraint("Coincident", 1, 2, 2, 1),
    Sketcher.Constraint("Coincident", 2, 2, 3, 1),
    Sketcher.Constraint("Coincident", 3, 2, 0, 1),
    Sketcher.Constraint("Vertical", 0),
    Sketcher.Constraint("Horizontal", 1),
    Sketcher.Constraint("Vertical", 2),
    Sketcher.Constraint("Horizontal", 3),
    Sketcher.Constraint("Symmetric", 0, 2, 1, 2, -1, 1),
    Sketcher.Constraint("DistanceX", 1, 1, 1, 2, 85.0),
    Sketcher.Constraint("DistanceY", 0, 2, 0, 1, 25.0),
])
pocket5 = body.newObject("PartDesign::Pocket", "Pocket004")
pocket5.Profile = sketch8
pocket5.Type = "ThroughAll"

sketch9 = body.newObject("Sketcher::SketchObject", "Sketch008")
sketch9.AttachmentSupport = (doc.getObject("YZ_Plane"), [""])
sketch9.MapMode = "FlatFace"
sketch9.AttachmentOffset = App.Placement(App.Vector(0, 0, 68.342017), App.Rotation())
sketch9.addGeometry([
    Part.LineSegment(App.Vector(25, 28, 0), App.Vector(0, 28, 0)),
    Part.LineSegment(App.Vector(0, 28, 0), App.Vector(0, -28, 0)),
    Part.LineSegment(App.Vector(0, -28, 0), App.Vector(25, -28, 0)),
    Part.LineSegment(App.Vector(25, -28, 0), App.Vector(25, 28, 0)),
], False)
sketch9.addConstraint([
    Sketcher.Constraint("Coincident", 0, 2, 1, 1),
    Sketcher.Constraint("Coincident", 1, 2, 2, 1),
    Sketcher.Constraint("Coincident", 2, 2, 3, 1),
    Sketcher.Constraint("Coincident", 3, 2, 0, 1),
    Sketcher.Constraint("Horizontal", 0),
    Sketcher.Constraint("Vertical", 1),
    Sketcher.Constraint("Horizontal", 2),
    Sketcher.Constraint("Vertical", 3),
    Sketcher.Constraint("Symmetric", 0, 2, 1, 2, -1, 1),
    Sketcher.Constraint("DistanceX", 0, 2, 0, 1, 25.0),
    Sketcher.Constraint("DistanceY", 1, 2, 1, 1, 56.0),
])
pocket6 = body.newObject("PartDesign::Pocket", "Pocket005")
pocket6.Profile = sketch9
pocket6.Type = "ThroughAll"
pocket6.Midplane = True

sketch10 = body.newObject("Sketcher::SketchObject", "Sketch009")
sketch10.AttachmentSupport = (doc.getObject("XZ_Plane"), [""])
sketch10.MapMode = "FlatFace"
sketch10.AttachmentOffset = App.Placement(App.Vector(0, 0, -79), App.Rotation())
sketch10.addGeometry([
    Part.Circle(App.Vector(40.5, -46, 0), App.Vector(0, 0, 1), 2.2),
    Part.Circle(App.Vector(-39.5, -46, 0), App.Vector(0, 0, 1), 2.2),
    Part.Circle(App.Vector(40.5, 46, 0), App.Vector(0, 0, 1), 2.2),
    Part.Circle(App.Vector(-39.5, 46, 0), App.Vector(0, 0, 1), 2.2),
], False)
sketch10.addConstraint([
    Sketcher.Constraint("Equal", 0, 1),
    Sketcher.Constraint("Equal", 1, 2),
    Sketcher.Constraint("Equal", 2, 3),
    Sketcher.Constraint("Symmetric", 0, 3, 2, 3, -1),
    Sketcher.Constraint("Symmetric", 1, 3, 3, 3, -1),
    Sketcher.Constraint("Horizontal", 0, 3, 1, 3),
    Sketcher.Constraint("Diameter", 0, 4.4),
    Sketcher.Constraint("DistanceY", 0, 3, -1, 1, 46.0),
    Sketcher.Constraint("DistanceX", 1, 3, 0, 3, 80.0),
    Sketcher.Constraint("DistanceX", -1, 1, 0, 3, 40.521857),
])
pocket7 = body.newObject("PartDesign::Pocket", "Pocket006")
pocket7.Profile = sketch10
pocket7.Length = 10
pocket7.Reversed = True

sketch11 = body.newObject("Sketcher::SketchObject", "Sketch010")
sketch11.AttachmentSupport = (doc.getObject("XY_Plane"), [""])
sketch11.MapMode = "FlatFace"
sketch11.AttachmentOffset = App.Placement(App.Vector(0, 0, -42.5), App.Rotation())
sketch11.addGeometry([
    Part.LineSegment(App.Vector(-40, 59, 0), App.Vector(-40, 55, 0)),
    Part.LineSegment(App.Vector(-40, 55, 0), App.Vector(-30, 55, 0)),
    Part.LineSegment(App.Vector(-30, 55, 0), App.Vector(-30, 59, 0)),
    Part.LineSegment(App.Vector(-30, 59, 0), App.Vector(-40, 59, 0)),
], False)
sketch11.addConstraint([
    Sketcher.Constraint("Coincident", 0, 2, 1, 1),
    Sketcher.Constraint("Coincident", 1, 2, 2, 1),
    Sketcher.Constraint("Coincident", 2, 2, 3, 1),
    Sketcher.Constraint("Coincident", 3, 2, 0, 1),
    Sketcher.Constraint("Vertical", 0),
    Sketcher.Constraint("Horizontal", 1),
    Sketcher.Constraint("Vertical", 2),
    Sketcher.Constraint("Horizontal", 3),
    Sketcher.Constraint("DistanceX", 1, 1, 1, 2, 10.0),
    Sketcher.Constraint("DistanceY", 0, 2, 0, 1, 4.0),
    Sketcher.Constraint("DistanceX", 0, 2, -1, 1, 40.0),
    Sketcher.Constraint("DistanceY", -1, 1, 0, 2, 55.0),
])
pad4 = body.newObject("PartDesign::Pad", "Pad003")
pad4.Profile = sketch11
pad4.Length = 13

sketch12 = body.newObject("Sketcher::SketchObject", "Sketch011")
sketch12.AttachmentSupport = (doc.getObject("XZ_Plane"), [""])
sketch12.MapMode = "FlatFace"
sketch12.AttachmentOffset = App.Placement(App.Vector(0, 0, -59), App.Rotation())
sketch12.addGeometry([
    Part.LineSegment(App.Vector(-40, -32.5, 0), App.Vector(-40, -29.5, 0)),
    Part.LineSegment(App.Vector(-40, -29.5, 0), App.Vector(-30, -29.5, 0)),
    Part.LineSegment(App.Vector(-30, -29.5, 0), App.Vector(-30, -32.5, 0)),
    Part.LineSegment(App.Vector(-30, -32.5, 0), App.Vector(-40, -32.5, 0)),
], False)
sketch12.addConstraint([
    Sketcher.Constraint("Coincident", 0, 2, 1, 1),
    Sketcher.Constraint("Coincident", 1, 2, 2, 1),
    Sketcher.Constraint("Coincident", 2, 2, 3, 1),
    Sketcher.Constraint("Coincident", 3, 2, 0, 1),
    Sketcher.Constraint("Vertical", 0),
    Sketcher.Constraint("Horizontal", 1),
    Sketcher.Constraint("Vertical", 2),
    Sketcher.Constraint("Horizontal", 3),
    Sketcher.Constraint("DistanceX", 1, 1, 1, 2, 10.0),
    Sketcher.Constraint("DistanceY", 0, 1, 0, 2, 3.0),
    Sketcher.Constraint("DistanceX", 0, 2, -1, 1, 40.0),
    Sketcher.Constraint("DistanceY", 0, 2, -1, 1, 29.5),
])
pad5 = body.newObject("PartDesign::Pad", "Pad004")
pad5.Profile = sketch12
pad5.Length = 15
pad5.Reversed = True
doc.recompute()

fillet = body.newObject("PartDesign::Fillet", "Fillet")
fillet.Base = (pad5, edges_at(pad5, [(-35, 55, -42.5)]))
fillet.Radius = 5
doc.recompute()

mirrored = body.newObject("PartDesign::Mirrored", "Mirrored")
mirrored.Originals = [pad4, pad5]
mirrored.MirrorPlane = (doc.getObject("XY_Plane"), [""])
body.Tip = mirrored
doc.recompute()

mirrored2 = body.newObject("PartDesign::Mirrored", "Mirrored001")
mirrored2.Originals = [pad4, pad5]
mirrored2.MirrorPlane = (doc.getObject("YZ_Plane"), [""])
body.Tip = mirrored2

sketch13 = body.newObject("Sketcher::SketchObject", "Sketch012")
sketch13.AttachmentSupport = (doc.getObject("XY_Plane"), [""])
sketch13.MapMode = "FlatFace"
sketch13.AttachmentOffset = App.Placement(App.Vector(0, 0, 42.5), App.Rotation())
sketch13.addGeometry([
    Part.LineSegment(App.Vector(40, 59, 0), App.Vector(40, 55, 0)),
    Part.LineSegment(App.Vector(40, 55, 0), App.Vector(30, 55, 0)),
    Part.LineSegment(App.Vector(30, 55, 0), App.Vector(30, 59, 0)),
    Part.LineSegment(App.Vector(30, 59, 0), App.Vector(40, 59, 0)),
], False)
sketch13.addConstraint([
    Sketcher.Constraint("Coincident", 0, 2, 1, 1),
    Sketcher.Constraint("Coincident", 1, 2, 2, 1),
    Sketcher.Constraint("Coincident", 2, 2, 3, 1),
    Sketcher.Constraint("Coincident", 3, 2, 0, 1),
    Sketcher.Constraint("Vertical", 0),
    Sketcher.Constraint("Horizontal", 1),
    Sketcher.Constraint("Vertical", 2),
    Sketcher.Constraint("Horizontal", 3),
    Sketcher.Constraint("DistanceX", 1, 2, 1, 1, 10.0),
    Sketcher.Constraint("DistanceY", 0, 2, 0, 1, 4.0),
    Sketcher.Constraint("DistanceX", -1, 1, 0, 2, 40.0),
    Sketcher.Constraint("DistanceY", -1, 1, 0, 2, 55.0),
])
pad6 = body.newObject("PartDesign::Pad", "Pad005")
pad6.Profile = sketch13
pad6.Length = 13
pad6.Reversed = True

sketch14 = body.newObject("Sketcher::SketchObject", "Sketch013")
sketch14.AttachmentSupport = (doc.getObject("XZ_Plane"), [""])
sketch14.MapMode = "FlatFace"
sketch14.AttachmentOffset = App.Placement(App.Vector(0, 0, -59), App.Rotation())
sketch14.addGeometry([
    Part.LineSegment(App.Vector(40, 32.5, 0), App.Vector(40, 29.5, 0)),
    Part.LineSegment(App.Vector(40, 29.5, 0), App.Vector(30, 29.5, 0)),
    Part.LineSegment(App.Vector(30, 29.5, 0), App.Vector(30, 32.5, 0)),
    Part.LineSegment(App.Vector(30, 32.5, 0), App.Vector(40, 32.5, 0)),
], False)
sketch14.addConstraint([
    Sketcher.Constraint("Coincident", 0, 2, 1, 1),
    Sketcher.Constraint("Coincident", 1, 2, 2, 1),
    Sketcher.Constraint("Coincident", 2, 2, 3, 1),
    Sketcher.Constraint("Coincident", 3, 2, 0, 1),
    Sketcher.Constraint("Vertical", 0),
    Sketcher.Constraint("Horizontal", 1),
    Sketcher.Constraint("Vertical", 2),
    Sketcher.Constraint("Horizontal", 3),
    Sketcher.Constraint("DistanceX", 1, 2, 1, 1, 10.0),
    Sketcher.Constraint("DistanceY", 0, 2, 0, 1, 3.0),
    Sketcher.Constraint("DistanceX", -1, 1, 0, 2, 40.0),
    Sketcher.Constraint("DistanceY", -1, 1, 0, 2, 29.5),
])
pad7 = body.newObject("PartDesign::Pad", "Pad006")
pad7.Profile = sketch14
pad7.Length = 15
pad7.Reversed = True

doc.recompute()
